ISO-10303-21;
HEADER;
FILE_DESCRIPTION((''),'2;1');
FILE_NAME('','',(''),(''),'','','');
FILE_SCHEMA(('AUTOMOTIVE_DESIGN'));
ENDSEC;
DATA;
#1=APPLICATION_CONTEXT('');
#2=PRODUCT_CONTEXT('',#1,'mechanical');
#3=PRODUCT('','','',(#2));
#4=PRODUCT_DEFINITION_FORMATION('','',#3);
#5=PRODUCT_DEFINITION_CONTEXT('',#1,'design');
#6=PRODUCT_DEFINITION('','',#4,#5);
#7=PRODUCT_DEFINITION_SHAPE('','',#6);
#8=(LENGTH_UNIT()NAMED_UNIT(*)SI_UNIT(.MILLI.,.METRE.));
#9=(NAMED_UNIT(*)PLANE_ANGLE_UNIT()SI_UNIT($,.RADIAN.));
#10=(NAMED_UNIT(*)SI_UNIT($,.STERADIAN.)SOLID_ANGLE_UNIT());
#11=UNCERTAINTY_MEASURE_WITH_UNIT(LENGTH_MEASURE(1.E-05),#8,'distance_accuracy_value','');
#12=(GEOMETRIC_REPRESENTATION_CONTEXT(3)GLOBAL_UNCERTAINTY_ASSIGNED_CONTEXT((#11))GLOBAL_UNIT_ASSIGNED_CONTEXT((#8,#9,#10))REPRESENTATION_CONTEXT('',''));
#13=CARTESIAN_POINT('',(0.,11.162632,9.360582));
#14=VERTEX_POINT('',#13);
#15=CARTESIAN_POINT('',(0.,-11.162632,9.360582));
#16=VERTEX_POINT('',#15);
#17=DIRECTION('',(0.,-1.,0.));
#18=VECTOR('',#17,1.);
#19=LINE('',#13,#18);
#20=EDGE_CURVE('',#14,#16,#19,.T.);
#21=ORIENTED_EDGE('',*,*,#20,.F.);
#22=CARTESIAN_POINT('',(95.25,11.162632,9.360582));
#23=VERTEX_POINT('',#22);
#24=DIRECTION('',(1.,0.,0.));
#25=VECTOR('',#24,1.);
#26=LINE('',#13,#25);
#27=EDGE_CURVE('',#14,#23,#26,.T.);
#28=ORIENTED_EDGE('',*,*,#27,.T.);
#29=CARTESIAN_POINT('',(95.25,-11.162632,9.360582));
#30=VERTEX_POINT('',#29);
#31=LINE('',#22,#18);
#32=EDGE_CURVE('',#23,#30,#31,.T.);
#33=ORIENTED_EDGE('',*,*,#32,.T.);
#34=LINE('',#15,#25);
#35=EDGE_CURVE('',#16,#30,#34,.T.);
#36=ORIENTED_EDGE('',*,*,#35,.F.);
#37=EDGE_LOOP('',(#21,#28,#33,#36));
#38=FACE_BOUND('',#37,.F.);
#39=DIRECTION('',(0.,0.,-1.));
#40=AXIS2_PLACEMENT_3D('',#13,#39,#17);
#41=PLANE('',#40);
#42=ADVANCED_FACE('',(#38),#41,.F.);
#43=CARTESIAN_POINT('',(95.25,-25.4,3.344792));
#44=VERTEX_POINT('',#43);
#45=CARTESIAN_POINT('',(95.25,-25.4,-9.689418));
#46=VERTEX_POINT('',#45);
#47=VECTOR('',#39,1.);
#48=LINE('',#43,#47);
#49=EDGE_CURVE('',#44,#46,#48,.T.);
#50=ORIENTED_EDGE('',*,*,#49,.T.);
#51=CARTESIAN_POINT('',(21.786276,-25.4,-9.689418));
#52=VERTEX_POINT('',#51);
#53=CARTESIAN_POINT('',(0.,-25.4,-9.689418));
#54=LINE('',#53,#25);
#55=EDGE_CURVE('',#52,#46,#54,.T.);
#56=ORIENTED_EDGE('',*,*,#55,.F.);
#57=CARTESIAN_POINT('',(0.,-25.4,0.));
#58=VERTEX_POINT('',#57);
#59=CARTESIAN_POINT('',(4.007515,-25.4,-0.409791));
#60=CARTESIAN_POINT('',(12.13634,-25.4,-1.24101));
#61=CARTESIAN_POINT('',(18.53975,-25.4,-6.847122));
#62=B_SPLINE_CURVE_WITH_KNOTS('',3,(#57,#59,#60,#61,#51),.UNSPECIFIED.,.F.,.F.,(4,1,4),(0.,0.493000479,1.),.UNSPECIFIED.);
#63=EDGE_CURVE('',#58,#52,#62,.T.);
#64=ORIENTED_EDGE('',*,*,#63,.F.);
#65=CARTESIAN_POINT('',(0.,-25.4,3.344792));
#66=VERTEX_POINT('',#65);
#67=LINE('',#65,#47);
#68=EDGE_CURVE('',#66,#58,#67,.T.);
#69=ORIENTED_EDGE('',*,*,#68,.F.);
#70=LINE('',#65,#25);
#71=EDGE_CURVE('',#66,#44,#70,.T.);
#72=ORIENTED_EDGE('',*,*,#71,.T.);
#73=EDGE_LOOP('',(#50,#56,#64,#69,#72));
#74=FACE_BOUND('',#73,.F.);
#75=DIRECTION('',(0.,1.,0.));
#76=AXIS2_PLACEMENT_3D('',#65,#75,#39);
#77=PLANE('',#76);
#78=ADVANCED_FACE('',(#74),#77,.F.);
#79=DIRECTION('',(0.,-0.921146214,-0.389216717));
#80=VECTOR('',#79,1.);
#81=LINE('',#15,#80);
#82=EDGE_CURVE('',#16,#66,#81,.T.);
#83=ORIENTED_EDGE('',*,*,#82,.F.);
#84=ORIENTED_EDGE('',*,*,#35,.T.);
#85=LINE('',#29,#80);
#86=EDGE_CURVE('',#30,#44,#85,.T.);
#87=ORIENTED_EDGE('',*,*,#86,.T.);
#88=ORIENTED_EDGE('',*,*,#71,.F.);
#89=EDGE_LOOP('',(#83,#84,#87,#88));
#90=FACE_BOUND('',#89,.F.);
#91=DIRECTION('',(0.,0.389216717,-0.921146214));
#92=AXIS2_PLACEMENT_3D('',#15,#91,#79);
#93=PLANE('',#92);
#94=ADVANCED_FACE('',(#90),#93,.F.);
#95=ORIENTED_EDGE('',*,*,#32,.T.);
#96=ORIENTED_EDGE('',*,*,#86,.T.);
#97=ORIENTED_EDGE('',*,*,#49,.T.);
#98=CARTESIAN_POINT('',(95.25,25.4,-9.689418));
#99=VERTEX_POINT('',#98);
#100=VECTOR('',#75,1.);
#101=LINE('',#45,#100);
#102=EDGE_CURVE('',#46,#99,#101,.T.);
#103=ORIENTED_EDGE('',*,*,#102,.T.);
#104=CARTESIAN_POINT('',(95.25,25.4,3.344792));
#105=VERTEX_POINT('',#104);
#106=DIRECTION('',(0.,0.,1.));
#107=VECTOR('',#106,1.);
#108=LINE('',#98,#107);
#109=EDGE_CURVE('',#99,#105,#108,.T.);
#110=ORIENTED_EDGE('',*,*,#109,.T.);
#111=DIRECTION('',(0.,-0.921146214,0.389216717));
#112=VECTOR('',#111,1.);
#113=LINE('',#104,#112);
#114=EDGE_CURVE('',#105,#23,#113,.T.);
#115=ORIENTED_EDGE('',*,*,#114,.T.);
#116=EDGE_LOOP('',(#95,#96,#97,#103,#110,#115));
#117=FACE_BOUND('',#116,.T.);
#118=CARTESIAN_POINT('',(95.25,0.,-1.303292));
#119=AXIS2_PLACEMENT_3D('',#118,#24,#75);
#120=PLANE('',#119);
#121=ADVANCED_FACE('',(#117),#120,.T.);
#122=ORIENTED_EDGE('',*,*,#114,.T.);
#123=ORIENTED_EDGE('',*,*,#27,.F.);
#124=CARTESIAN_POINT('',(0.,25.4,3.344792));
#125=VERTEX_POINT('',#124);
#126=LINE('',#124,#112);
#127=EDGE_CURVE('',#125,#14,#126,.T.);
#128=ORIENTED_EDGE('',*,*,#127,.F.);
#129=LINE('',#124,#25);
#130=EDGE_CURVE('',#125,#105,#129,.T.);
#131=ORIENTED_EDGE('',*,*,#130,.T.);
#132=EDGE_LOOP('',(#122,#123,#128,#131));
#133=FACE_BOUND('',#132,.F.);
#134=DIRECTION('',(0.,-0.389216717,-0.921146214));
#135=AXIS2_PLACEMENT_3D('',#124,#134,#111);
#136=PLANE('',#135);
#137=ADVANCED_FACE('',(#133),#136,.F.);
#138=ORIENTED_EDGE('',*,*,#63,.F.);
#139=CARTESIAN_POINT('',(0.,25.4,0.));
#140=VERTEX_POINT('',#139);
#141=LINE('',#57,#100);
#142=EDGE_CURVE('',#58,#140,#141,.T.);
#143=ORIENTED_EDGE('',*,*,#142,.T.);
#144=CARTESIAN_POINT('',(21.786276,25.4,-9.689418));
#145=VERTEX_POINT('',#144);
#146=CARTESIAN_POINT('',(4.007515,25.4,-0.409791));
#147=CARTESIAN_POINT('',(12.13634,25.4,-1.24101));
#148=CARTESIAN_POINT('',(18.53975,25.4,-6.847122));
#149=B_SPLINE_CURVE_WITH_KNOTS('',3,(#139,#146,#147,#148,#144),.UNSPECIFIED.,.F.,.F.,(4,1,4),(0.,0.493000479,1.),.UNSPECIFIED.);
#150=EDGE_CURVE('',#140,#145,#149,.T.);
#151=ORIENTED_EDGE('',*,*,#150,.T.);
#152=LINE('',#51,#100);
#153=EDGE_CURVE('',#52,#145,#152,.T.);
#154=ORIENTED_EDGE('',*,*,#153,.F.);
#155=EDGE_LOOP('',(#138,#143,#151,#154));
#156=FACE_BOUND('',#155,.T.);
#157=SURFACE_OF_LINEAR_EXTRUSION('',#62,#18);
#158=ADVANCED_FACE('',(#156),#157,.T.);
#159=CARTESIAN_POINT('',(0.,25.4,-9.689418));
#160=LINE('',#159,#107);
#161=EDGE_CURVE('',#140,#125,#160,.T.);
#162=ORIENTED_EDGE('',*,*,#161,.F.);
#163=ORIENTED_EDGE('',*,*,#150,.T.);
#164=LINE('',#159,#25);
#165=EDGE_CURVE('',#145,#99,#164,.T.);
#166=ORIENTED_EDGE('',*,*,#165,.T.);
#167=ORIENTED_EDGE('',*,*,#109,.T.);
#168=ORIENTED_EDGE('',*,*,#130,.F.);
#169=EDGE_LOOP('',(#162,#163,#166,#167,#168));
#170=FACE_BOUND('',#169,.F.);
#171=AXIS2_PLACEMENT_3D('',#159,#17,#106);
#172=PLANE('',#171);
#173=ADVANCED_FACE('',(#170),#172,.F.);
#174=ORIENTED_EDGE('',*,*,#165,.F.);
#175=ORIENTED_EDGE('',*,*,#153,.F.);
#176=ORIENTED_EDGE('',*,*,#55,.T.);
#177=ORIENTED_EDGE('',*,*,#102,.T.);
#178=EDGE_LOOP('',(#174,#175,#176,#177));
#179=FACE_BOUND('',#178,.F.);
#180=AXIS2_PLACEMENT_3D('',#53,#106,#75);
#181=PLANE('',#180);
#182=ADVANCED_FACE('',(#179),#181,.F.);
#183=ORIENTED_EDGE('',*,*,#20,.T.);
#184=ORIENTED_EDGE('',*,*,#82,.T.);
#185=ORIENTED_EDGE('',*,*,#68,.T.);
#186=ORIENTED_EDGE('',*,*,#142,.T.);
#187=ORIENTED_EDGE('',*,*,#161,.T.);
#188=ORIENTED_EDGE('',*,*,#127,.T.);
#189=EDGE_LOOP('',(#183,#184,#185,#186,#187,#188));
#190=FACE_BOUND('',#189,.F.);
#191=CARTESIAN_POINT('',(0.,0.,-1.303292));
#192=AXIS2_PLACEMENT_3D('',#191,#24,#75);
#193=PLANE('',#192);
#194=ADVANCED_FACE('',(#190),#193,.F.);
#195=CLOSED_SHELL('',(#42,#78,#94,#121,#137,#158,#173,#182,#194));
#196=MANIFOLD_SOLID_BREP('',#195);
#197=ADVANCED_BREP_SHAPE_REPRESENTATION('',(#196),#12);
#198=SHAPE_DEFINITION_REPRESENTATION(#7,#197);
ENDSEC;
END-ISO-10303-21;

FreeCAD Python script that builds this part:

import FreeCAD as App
import Part
import Sketcher

V = App.Vector
Q = App.Units.Quantity


def add_polygon(sketch, points):
    """Adds a closed chain of lines whose ends are joined by coincident constraints."""
    first, n = sketch.GeometryCount, len(points)
    for a, b in zip(points, points[1:] + points[:1]):
        sketch.addGeometry(Part.LineSegment(App.Vector(*a, 0), App.Vector(*b, 0)), False)
    for i in range(n):
        sketch.addConstraint(Sketcher.Constraint("Coincident", first + i, 2, first + (i + 1) % n, 1))

doc = App.newDocument("Part")
params = doc.addObject("Spreadsheet::Sheet", "Params")
for row, (alias, value) in enumerate([
    ("sketch1_width", "2 in"),
    ("pad1_length", "3.75 in"),
    ("pocket1_length", "2 in"),
], start=1):
    params.set(f"A{row}", alias)
    params.set(f"B{row}", "=" + value)
    params.setAlias(f"B{row}", alias)

body = doc.addObject("PartDesign::Body", "Body")

# Sketch on YZ plane
sketch1 = body.newObject("Sketcher::SketchObject", "Sketch")
sketch1.AttachmentSupport = (doc.getObject("YZ_Plane"), [""])
sketch1.MapMode = "FlatFace"
add_polygon(sketch1, [(11, 9), (-11, 9), (-25, 3), (-25, -10), (25, -10), (25, 3)])  # lines 0-5
sketch1.addConstraint(Sketcher.Constraint("Horizontal", 0))
sketch1.addConstraint(Sketcher.Constraint("Vertical", 2))
sketch1.addConstraint(Sketcher.Constraint("Horizontal", 3))
sketch1.addConstraint(Sketcher.Constraint("Vertical", 4))
sketch1.addConstraint(Sketcher.Constraint("Symmetric", 1, 2, 4, 2, -2))
sketch1.addConstraint(Sketcher.Constraint("Equal", 1, 5))
sketch1.addConstraint(Sketcher.Constraint("DistanceX", 3, 1, 3, 2, Q("2 in")))
sketch1.addConstraint(Sketcher.Constraint("DistanceY", 2, 2, 0, 2, Q("0.75 in")))
sketch1.addConstraint(Sketcher.Constraint("DistanceY", 2, 2, 2, 1, 13.034211))
sketch1.addConstraint(Sketcher.Constraint("DistanceX", 0, 2, 0, 1, 22.325264))
sketch1.addConstraint(Sketcher.Constraint("DistanceY", -1, 1, 0, 2, 9.360582))
sketch1.setExpression("Constraints[12]", "Params.sketch1_width")
pad1 = body.newObject("PartDesign::Pad", "Pad")
pad1.Profile = sketch1
pad1.setExpression("Length", "Params.pad1_length")

# Sketch on XZ plane
sketch2 = body.newObject("Sketcher::SketchObject", "Sketch001")
sketch2.AttachmentSupport = (doc.getObject("XZ_Plane"), [""])
sketch2.MapMode = "FlatFace"
sketch2.AttachmentOffset = App.Placement(V(0, 0, 1 * 25.4), App.Rotation())
sketch2.addGeometry(Part.BSplineCurve([V(0, 0, 0), V(4.007515, -0.409791, 0), V(12.13634, -1.24101, 0), V(18.53975, -6.847122, 0), V(21.786276, -9.689418, 0)], [4, 1, 4], [0, 0.493000479, 1], False, 3, [1, 1, 1, 1, 1], False), False)
sketch2.addGeometry(Part.LineSegment(V(0, 0, 0), V(0, -9.689418, 0)), False)
sketch2.addGeometry(Part.LineSegment(V(0, -9.689418, 0), V(21.786276, -9.689418, 0)), False)
sketch2.addConstraint(Sketcher.Constraint("Block", 0))
sketch2.addConstraint(Sketcher.Constraint("Coincident", 0, 1, 1, 1))
sketch2.addConstraint(Sketcher.Constraint("Coincident", 1, 2, 2, 1))
sketch2.addConstraint(Sketcher.Constraint("Coincident", 2, 2, 0, 2))
sketch2.addConstraint(Sketcher.Constraint("Vertical", 1))
sketch2.addConstraint(Sketcher.Constraint("Horizontal", 2))
pocket1 = body.newObject("PartDesign::Pocket", "Pocket")
pocket1.Profile = sketch2
pocket1.setExpression("Length", "Params.pocket1_length")

doc.recompute()
